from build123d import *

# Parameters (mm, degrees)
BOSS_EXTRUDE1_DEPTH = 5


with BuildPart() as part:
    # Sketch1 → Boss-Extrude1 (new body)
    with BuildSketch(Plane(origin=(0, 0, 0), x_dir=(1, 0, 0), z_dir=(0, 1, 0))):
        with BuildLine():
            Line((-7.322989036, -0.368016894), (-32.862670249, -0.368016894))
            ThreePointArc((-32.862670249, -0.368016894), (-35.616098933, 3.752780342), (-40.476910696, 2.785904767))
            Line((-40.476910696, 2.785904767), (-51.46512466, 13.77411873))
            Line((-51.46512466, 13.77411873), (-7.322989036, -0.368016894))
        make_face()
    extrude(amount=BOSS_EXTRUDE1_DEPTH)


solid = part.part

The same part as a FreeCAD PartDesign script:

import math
import FreeCAD as App
import Part
import Sketcher
from FreeCAD import Vector
Q = App.Units.Quantity

doc = App.newDocument("Part")
params = doc.addObject("Spreadsheet::Sheet", "Params")
for row, (alias, value) in enumerate([
    ("pad1_length", "5 mm"),
], start=1):
    params.set(f"A{row}", alias)
    params.set(f"B{row}", "=" + value)
    params.setAlias(f"B{row}", alias)

body = doc.addObject("PartDesign::Body", "Body")

# Sketch on XZ plane
sketch1 = body.newObject("Sketcher::SketchObject", "Sketch")
sketch1.AttachmentSupport = (doc.getObject("XZ_Plane"), [""])
sketch1.MapMode = "FlatFace"
sketch1.addGeometry([
    Part.LineSegment(Vector(-32.9, 0.4, 0), Vector(-7.3, 0.4, 0)),
    Part.LineSegment(Vector(-7.3, 0.4, 0), Vector(-51.5, -13.8, 0)),
    Part.LineSegment(Vector(-51.5, -13.8, 0), Vector(-40.5, -2.8, 0)),
    Part.ArcOfCircle(Part.Circle(Vector(-37.3, 0.4, 0), Vector(0, 0, 1), 4.5), math.radians(-135), math.radians(0)),
], False)
sketch1.addConstraint([
    Sketcher.Constraint("Coincident", 0, 2, 1, 1),
    Sketcher.Constraint("Coincident", 1, 2, 2, 1),
    Sketcher.Constraint("Coincident", 2, 2, 3, 1),
    Sketcher.Constraint("Coincident", 3, 2, 0, 1),
    Sketcher.Constraint("Horizontal", 0),
    Sketcher.Constraint("Horizontal", 3, 3, 0, 2),
    Sketcher.Constraint("Angle", 2, Q("45 deg")),
    Sketcher.Constraint("DistanceX", 3, 3, 0, 2, Q("30 mm")),
    Sketcher.Constraint("Radius", 3, Q("4.460319 mm")),
    Sketcher.Constraint("Distance", 1, Q("46.352218 mm")),
    Sketcher.Constraint("Distance", 2, Q("15.539681 mm")),
    Sketcher.Constraint("DistanceX", 3, 3, -1, 1, Q("37.322989 mm")),
    Sketcher.Constraint("DistanceY", 1, 2, -1, 1, Q("13.774119 mm")),
])
pad1 = body.newObject("PartDesign::Pad", "Pad")
pad1.Profile = sketch1
pad1.setExpression("Length", "Params.pad1_length")
pad1.Reversed = True

doc.recompute()
